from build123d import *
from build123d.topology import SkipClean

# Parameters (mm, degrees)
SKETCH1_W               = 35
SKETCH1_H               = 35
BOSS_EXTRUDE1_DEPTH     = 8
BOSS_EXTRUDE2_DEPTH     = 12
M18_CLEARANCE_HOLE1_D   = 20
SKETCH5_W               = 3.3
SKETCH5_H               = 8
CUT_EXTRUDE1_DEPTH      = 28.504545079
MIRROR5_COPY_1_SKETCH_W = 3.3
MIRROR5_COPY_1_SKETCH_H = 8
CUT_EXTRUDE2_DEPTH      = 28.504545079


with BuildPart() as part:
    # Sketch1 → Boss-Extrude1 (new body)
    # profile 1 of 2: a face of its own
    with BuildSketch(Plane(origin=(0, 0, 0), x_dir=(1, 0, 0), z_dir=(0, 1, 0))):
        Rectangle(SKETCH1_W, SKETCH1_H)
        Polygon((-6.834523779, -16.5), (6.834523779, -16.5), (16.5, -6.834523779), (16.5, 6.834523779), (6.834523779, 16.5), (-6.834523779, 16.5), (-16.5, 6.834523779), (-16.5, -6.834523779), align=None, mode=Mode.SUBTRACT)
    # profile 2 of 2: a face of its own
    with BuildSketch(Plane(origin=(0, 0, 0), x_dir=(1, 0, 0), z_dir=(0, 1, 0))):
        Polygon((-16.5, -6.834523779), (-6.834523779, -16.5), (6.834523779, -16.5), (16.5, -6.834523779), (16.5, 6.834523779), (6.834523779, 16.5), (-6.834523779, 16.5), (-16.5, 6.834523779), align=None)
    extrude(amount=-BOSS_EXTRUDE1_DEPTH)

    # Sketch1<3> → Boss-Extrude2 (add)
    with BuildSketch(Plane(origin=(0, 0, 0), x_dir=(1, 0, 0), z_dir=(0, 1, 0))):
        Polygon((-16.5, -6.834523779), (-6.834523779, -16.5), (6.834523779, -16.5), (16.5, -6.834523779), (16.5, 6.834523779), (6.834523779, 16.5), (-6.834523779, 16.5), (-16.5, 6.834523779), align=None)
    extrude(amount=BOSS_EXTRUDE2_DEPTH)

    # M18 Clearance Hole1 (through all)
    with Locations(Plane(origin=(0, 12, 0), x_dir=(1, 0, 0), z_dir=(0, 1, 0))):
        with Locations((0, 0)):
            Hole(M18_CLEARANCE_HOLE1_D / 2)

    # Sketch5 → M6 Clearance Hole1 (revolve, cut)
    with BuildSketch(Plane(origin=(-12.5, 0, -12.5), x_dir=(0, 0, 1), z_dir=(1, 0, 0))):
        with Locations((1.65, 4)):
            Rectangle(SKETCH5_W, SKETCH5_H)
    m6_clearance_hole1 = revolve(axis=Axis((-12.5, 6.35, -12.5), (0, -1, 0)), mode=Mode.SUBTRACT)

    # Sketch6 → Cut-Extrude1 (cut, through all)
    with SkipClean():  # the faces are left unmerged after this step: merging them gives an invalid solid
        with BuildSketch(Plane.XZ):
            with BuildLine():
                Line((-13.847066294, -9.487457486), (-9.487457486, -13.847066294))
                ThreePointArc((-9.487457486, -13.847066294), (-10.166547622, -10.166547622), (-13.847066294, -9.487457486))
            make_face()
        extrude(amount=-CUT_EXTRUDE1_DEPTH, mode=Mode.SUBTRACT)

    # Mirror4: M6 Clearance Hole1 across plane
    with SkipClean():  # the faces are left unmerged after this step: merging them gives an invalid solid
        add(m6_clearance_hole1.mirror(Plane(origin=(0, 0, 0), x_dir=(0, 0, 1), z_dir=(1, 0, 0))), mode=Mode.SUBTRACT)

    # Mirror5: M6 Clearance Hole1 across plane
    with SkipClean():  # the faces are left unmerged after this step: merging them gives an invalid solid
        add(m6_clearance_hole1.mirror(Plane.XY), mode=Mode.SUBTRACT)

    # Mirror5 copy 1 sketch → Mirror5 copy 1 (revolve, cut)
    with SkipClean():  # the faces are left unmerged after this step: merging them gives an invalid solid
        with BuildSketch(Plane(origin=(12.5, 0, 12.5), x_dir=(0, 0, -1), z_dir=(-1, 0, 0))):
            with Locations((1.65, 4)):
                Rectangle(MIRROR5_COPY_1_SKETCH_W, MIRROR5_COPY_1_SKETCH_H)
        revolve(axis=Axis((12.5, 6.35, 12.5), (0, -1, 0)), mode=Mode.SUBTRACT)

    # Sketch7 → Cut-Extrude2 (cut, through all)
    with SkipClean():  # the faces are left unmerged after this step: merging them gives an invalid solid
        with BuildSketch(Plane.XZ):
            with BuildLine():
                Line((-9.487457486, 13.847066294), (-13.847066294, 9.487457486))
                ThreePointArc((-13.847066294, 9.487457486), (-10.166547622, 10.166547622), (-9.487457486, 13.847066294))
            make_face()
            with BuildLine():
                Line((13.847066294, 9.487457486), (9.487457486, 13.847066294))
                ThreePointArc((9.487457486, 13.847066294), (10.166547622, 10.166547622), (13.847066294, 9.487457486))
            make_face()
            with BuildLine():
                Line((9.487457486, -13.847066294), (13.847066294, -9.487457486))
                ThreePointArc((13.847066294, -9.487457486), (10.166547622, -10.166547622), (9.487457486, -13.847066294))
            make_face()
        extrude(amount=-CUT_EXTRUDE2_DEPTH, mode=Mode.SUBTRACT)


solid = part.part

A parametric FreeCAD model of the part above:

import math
import FreeCAD as App
import Part
import Sketcher
from FreeCAD import Vector
Q = App.Units.Quantity

doc = App.newDocument("Part")
body = doc.addObject("PartDesign::Body", "Body")

sketch1 = body.newObject("Sketcher::SketchObject", "Sketch")
sketch1.AttachmentSupport = (doc.getObject("XZ_Plane"), [""])
sketch1.MapMode = "FlatFace"
sketch1.addGeometry([
    Part.LineSegment(Vector(-18, -18, 0), Vector(-18, 18, 0)),
    Part.LineSegment(Vector(-18, 18, 0), Vector(18, 18, 0)),
    Part.LineSegment(Vector(18, 18, 0), Vector(18, -18, 0)),
    Part.LineSegment(Vector(18, -18, 0), Vector(-18, -18, 0)),
], False)
sketch1.addConstraint([
    Sketcher.Constraint("Coincident", 0, 2, 1, 1),
    Sketcher.Constraint("Coincident", 1, 2, 2, 1),
    Sketcher.Constraint("Coincident", 2, 2, 3, 1),
    Sketcher.Constraint("Coincident", 3, 2, 0, 1),
    Sketcher.Constraint("Vertical", 0),
    Sketcher.Constraint("Horizontal", 1),
    Sketcher.Constraint("Vertical", 2),
    Sketcher.Constraint("Horizontal", 3),
    Sketcher.Constraint("Symmetric", 0, 2, 2, 2, -1, 1),
    Sketcher.Constraint("Equal", 3, 0),
    Sketcher.Constraint("DistanceX", 1, 1, 1, 2, 35.0),
])
pad1 = body.newObject("PartDesign::Pad", "Pad")
pad1.Profile = sketch1
pad1.Length = 8

sketch2 = body.newObject("Sketcher::SketchObject", "Sketch001")
sketch2.AttachmentSupport = (doc.getObject("XZ_Plane"), [""])
sketch2.MapMode = "FlatFace"
sketch2.addGeometry([
    Part.LineSegment(Vector(-16, 7, 0), Vector(-7, 16, 0)),
    Part.LineSegment(Vector(-7, 16, 0), Vector(7, 16, 0)),
    Part.LineSegment(Vector(7, 16, 0), Vector(16, 7, 0)),
    Part.LineSegment(Vector(16, 7, 0), Vector(16, -7, 0)),
    Part.LineSegment(Vector(16, -7, 0), Vector(7, -16, 0)),
    Part.LineSegment(Vector(7, -16, 0), Vector(-7, -16, 0)),
    Part.LineSegment(Vector(-7, -16, 0), Vector(-16, -7, 0)),
    Part.LineSegment(Vector(-16, -7, 0), Vector(-16, 7, 0)),
], False)
sketch2.addConstraint([
    Sketcher.Constraint("Coincident", 0, 2, 1, 1),
    Sketcher.Constraint("Coincident", 1, 2, 2, 1),
    Sketcher.Constraint("Coincident", 2, 2, 3, 1),
    Sketcher.Constraint("Coincident", 3, 2, 4, 1),
    Sketcher.Constraint("Coincident", 4, 2, 5, 1),
    Sketcher.Constraint("Coincident", 5, 2, 6, 1),
    Sketcher.Constraint("Coincident", 6, 2, 7, 1),
    Sketcher.Constraint("Coincident", 7, 2, 0, 1),
    Sketcher.Constraint("Horizontal", 1),
    Sketcher.Constraint("Vertical", 3),
    Sketcher.Constraint("Horizontal", 5),
    Sketcher.Constraint("Vertical", 7),
    Sketcher.Constraint("Symmetric", 0, 2, 4, 2, -1, 1),
    Sketcher.Constraint("Symmetric", 2, 2, 6, 2, -1, 1),
    Sketcher.Constraint("Perpendicular", 0, 2),
    Sketcher.Constraint("Perpendicular", 2, 4),
    Sketcher.Constraint("Perpendicular", 4, 6),
    Sketcher.Constraint("Horizontal", 3, 2, 6, 2),
    Sketcher.Constraint("Vertical", 1, 2, 4, 2),
    Sketcher.Constraint("Equal", 5, 3),
    Sketcher.Constraint("DistanceY", 4, 2, 1, 2, 33.0),
    Sketcher.Constraint("DistanceX", 1, 1, 1, 2, 13.669048),
])
pad2 = body.newObject("PartDesign::Pad", "Pad001")
pad2.Profile = sketch2
pad2.Length = 12
pad2.Reversed = True

sketch3 = body.newObject("Sketcher::SketchObject", "Sketch002")
sketch3.AttachmentSupport = (doc.getObject("XZ_Plane"), [""])
sketch3.MapMode = "FlatFace"
sketch3.AttachmentOffset = App.Placement(Vector(0, 0, -12), App.Rotation())
sketch3.addGeometry(Part.Circle(Vector(0, 0, 0), Vector(0, 0, 1), 10), False)
sketch3.addConstraint([
    Sketcher.Constraint("Coincident", 0, 3, -1, 1),
    Sketcher.Constraint("Diameter", 0, 20.0),
])
doc.recompute()
hole = body.newObject("PartDesign::Hole", "Hole")
hole.Profile = sketch3
hole.ThreadType = "None"
hole.Diameter = 20
hole.DepthType = "ThroughAll"
hole.Reversed = True

sketch4 = body.newObject("Sketcher::SketchObject", "Sketch003")
sketch4.AttachmentSupport = (doc.getObject("YZ_Plane"), [""])
sketch4.MapMode = "FlatFace"
sketch4.AttachmentOffset = App.Placement(Vector(0, 0, -12.5), App.Rotation())
sketch4.addGeometry([
    Part.LineSegment(Vector(-8, -12.5, 0), Vector(0, -12.5, 0)),
    Part.LineSegment(Vector(0, -12.5, 0), Vector(0, -9.2, 0)),
    Part.LineSegment(Vector(0, -9.2, 0), Vector(-8, -9.2, 0)),
    Part.LineSegment(Vector(-8, -9.2, 0), Vector(-8, -12.5, 0)),
], False)
sketch4.addGeometry(Part.LineSegment(Vector(0, -12.5, 0), Vector(-8, -12.5, 0)), True)
sketch4.addConstraint([
    Sketcher.Constraint("Coincident", 0, 2, 1, 1),
    Sketcher.Constraint("Coincident", 1, 2, 2, 1),
    Sketcher.Constraint("Coincident", 2, 2, 3, 1),
    Sketcher.Constraint("Coincident", 3, 2, 0, 1),
    Sketcher.Constraint("Horizontal", 0),
    Sketcher.Constraint("Vertical", 1),
    Sketcher.Constraint("Horizontal", 2),
    Sketcher.Constraint("Vertical", 3),
    Sketcher.Constraint("Horizontal", 4),
    Sketcher.Constraint("Coincident", 4, 1, 0, 2),
    Sketcher.Constraint("PointOnObject", 0, 2, -2),
    Sketcher.Constraint("Vertical", 2, 2, 4, 2),
    Sketcher.Constraint("DistanceX", 0, 1, 0, 2, 8.0),
    Sketcher.Constraint("DistanceY", 1, 1, 1, 2, 3.3),
    Sketcher.Constraint("DistanceY", 0, 2, -1, 1, 12.5),
])
groove = body.newObject("PartDesign::Groove", "Groove")
groove.Profile = sketch4
groove.ReferenceAxis = (sketch4, ["Axis0"])
groove.Angle = 360

sketch5 = body.newObject("Sketcher::SketchObject", "Sketch004")
sketch5.AttachmentSupport = (doc.getObject("XZ_Plane"), [""])
sketch5.MapMode = "FlatFace"
sketch5.addGeometry([
    Part.LineSegment(Vector(-13.8, -9.5, 0), Vector(-9.5, -13.8, 0)),
    Part.ArcOfCircle(Part.Circle(Vector(-12.5, -12.5, 0), Vector(0, 0, 1), 3.3), math.radians(-24), math.radians(114)),
], False)
sketch5.addConstraint([
    Sketcher.Constraint("Coincident", 0, 1, 1, 2),
    Sketcher.Constraint("Coincident", 1, 1, 0, 2),
    Sketcher.Constraint("Radius", 1, 3.3),
    Sketcher.Constraint("Angle", 0, Q("-45 deg")),
    Sketcher.Constraint("DistanceX", 1, 3, -1, 1, 12.5),
    Sketcher.Constraint("DistanceY", 1, 3, -1, 1, 12.5),
    Sketcher.Constraint("DistanceX", 0, 1, 1, 1, 4.359609),
])
pocket1 = body.newObject("PartDesign::Pocket", "Pocket")
pocket1.Profile = sketch5
pocket1.Type = "ThroughAll"
doc.recompute()

mirrored = body.newObject("PartDesign::Mirrored", "Mirrored")
mirrored.Originals = [groove]
mirrored.MirrorPlane = (doc.getObject("YZ_Plane"), [""])
body.Tip = mirrored
doc.recompute()

mirrored2 = body.newObject("PartDesign::Mirrored", "Mirrored001")
mirrored2.Originals = [groove]
mirrored2.MirrorPlane = (doc.getObject("XY_Plane"), [""])
body.Tip = mirrored2

sketch6 = body.newObject("Sketcher::SketchObject", "Sketch005")
sketch6.AttachmentSupport = (doc.getObject("YZ_Plane"), [""])
sketch6.MapMode = "FlatFace"
sketch6.AttachmentOffset = App.Placement(Vector(0, 0, 12.5), App.Rotation())
sketch6.addGeometry([
    Part.LineSegment(Vector(-8, 12.5, 0), Vector(0, 12.5, 0)),
    Part.LineSegment(Vector(0, 12.5, 0), Vector(0, 9.2, 0)),
    Part.LineSegment(Vector(0, 9.2, 0), Vector(-8, 9.2, 0)),
    Part.LineSegment(Vector(-8, 9.2, 0), Vector(-8, 12.5, 0)),
], False)
sketch6.addGeometry(Part.LineSegment(Vector(0, 12.5, 0), Vector(-8, 12.5, 0)), True)
sketch6.addConstraint([
    Sketcher.Constraint("Coincident", 0, 2, 1, 1),
    Sketcher.Constraint("Coincident", 1, 2, 2, 1),
    Sketcher.Constraint("Coincident", 2, 2, 3, 1),
    Sketcher.Constraint("Coincident", 3, 2, 0, 1),
    Sketcher.Constraint("Horizontal", 0),
    Sketcher.Constraint("Vertical", 1),
    Sketcher.Constraint("Horizontal", 2),
    Sketcher.Constraint("Vertical", 3),
    Sketcher.Constraint("Horizontal", 4),
    Sketcher.Constraint("Coincident", 4, 1, 0, 2),
    Sketcher.Constraint("PointOnObject", 0, 2, -2),
    Sketcher.Constraint("Vertical", 2, 2, 4, 2),
    Sketcher.Constraint("DistanceX", 0, 1, 0, 2, 8.0),
    Sketcher.Constraint("DistanceY", 1, 2, 1, 1, 3.3),
    Sketcher.Constraint("DistanceY", -1, 1, 0, 2, 12.5),
])
groove2 = body.newObject("PartDesign::Groove", "Groove001")
groove2.Profile = sketch6
groove2.ReferenceAxis = (sketch6, ["Axis0"])
groove2.Angle = 360

sketch7 = body.newObject("Sketcher::SketchObject", "Sketch006")
sketch7.AttachmentSupport = (doc.getObject("XZ_Plane"), [""])
sketch7.MapMode = "FlatFace"
sketch7.addGeometry([
    Part.LineSegment(Vector(-9.5, 13.8, 0), Vector(-13.8, 9.5, 0)),
    Part.ArcOfCircle(Part.Circle(Vector(-12.5, 12.5, 0), Vector(0, 0, 1), 3.3), math.radians(-114), math.radians(24)),
    Part.LineSegment(Vector(13.8, 9.5, 0), Vector(9.5, 13.8, 0)),
    Part.ArcOfCircle(Part.Circle(Vector(12.5, 12.5, 0), Vector(0, 0, 1), 3.3), math.radians(156), math.radians(294)),
    Part.LineSegment(Vector(9.5, -13.8, 0), Vector(13.8, -9.5, 0)),
    Part.ArcOfCircle(Part.Circle(Vector(12.5, -12.5, 0), Vector(0, 0, 1), 3.3), math.radians(66), math.radians(204)),
], False)
sketch7.addConstraint([
    Sketcher.Constraint("Coincident", 0, 1, 1, 2),
    Sketcher.Constraint("Coincident", 1, 1, 0, 2),
    Sketcher.Constraint("Coincident", 2, 1, 3, 2),
    Sketcher.Constraint("Coincident", 3, 1, 2, 2),
    Sketcher.Constraint("Coincident", 4, 1, 5, 2),
    Sketcher.Constraint("Coincident", 5, 1, 4, 2),
    Sketcher.Constraint("Equal", 1, 3),
    Sketcher.Constraint("Equal", 3, 5),
    Sketcher.Constraint("Symmetric", 1, 3, 5, 3, -1, 1),
    Sketcher.Constraint("Symmetric", 1, 3, 3, 3, -2),
    Sketcher.Constraint("Perpendicular", 0, 2),
    Sketcher.Constraint("Perpendicular", 2, 4),
    Sketcher.Constraint("Horizontal", 1, 1, 2, 1),
    Sketcher.Constraint("Horizontal", 0, 1, 3, 1),
    Sketcher.Constraint("Vertical", 3, 1, 4, 1),
    Sketcher.Constraint("Radius", 1, 3.3),
    Sketcher.Constraint("DistanceX", 1, 3, 3, 3, 25.0),
    Sketcher.Constraint("DistanceY", 5, 3, 3, 3, 25.0),
    Sketcher.Constraint("DistanceX", 1, 1, 0, 1, 4.359609),
])
pocket2 = body.newObject("PartDesign::Pocket", "Pocket001")
pocket2.Profile = sketch7
pocket2.Type = "ThroughAll"

doc.recompute()
